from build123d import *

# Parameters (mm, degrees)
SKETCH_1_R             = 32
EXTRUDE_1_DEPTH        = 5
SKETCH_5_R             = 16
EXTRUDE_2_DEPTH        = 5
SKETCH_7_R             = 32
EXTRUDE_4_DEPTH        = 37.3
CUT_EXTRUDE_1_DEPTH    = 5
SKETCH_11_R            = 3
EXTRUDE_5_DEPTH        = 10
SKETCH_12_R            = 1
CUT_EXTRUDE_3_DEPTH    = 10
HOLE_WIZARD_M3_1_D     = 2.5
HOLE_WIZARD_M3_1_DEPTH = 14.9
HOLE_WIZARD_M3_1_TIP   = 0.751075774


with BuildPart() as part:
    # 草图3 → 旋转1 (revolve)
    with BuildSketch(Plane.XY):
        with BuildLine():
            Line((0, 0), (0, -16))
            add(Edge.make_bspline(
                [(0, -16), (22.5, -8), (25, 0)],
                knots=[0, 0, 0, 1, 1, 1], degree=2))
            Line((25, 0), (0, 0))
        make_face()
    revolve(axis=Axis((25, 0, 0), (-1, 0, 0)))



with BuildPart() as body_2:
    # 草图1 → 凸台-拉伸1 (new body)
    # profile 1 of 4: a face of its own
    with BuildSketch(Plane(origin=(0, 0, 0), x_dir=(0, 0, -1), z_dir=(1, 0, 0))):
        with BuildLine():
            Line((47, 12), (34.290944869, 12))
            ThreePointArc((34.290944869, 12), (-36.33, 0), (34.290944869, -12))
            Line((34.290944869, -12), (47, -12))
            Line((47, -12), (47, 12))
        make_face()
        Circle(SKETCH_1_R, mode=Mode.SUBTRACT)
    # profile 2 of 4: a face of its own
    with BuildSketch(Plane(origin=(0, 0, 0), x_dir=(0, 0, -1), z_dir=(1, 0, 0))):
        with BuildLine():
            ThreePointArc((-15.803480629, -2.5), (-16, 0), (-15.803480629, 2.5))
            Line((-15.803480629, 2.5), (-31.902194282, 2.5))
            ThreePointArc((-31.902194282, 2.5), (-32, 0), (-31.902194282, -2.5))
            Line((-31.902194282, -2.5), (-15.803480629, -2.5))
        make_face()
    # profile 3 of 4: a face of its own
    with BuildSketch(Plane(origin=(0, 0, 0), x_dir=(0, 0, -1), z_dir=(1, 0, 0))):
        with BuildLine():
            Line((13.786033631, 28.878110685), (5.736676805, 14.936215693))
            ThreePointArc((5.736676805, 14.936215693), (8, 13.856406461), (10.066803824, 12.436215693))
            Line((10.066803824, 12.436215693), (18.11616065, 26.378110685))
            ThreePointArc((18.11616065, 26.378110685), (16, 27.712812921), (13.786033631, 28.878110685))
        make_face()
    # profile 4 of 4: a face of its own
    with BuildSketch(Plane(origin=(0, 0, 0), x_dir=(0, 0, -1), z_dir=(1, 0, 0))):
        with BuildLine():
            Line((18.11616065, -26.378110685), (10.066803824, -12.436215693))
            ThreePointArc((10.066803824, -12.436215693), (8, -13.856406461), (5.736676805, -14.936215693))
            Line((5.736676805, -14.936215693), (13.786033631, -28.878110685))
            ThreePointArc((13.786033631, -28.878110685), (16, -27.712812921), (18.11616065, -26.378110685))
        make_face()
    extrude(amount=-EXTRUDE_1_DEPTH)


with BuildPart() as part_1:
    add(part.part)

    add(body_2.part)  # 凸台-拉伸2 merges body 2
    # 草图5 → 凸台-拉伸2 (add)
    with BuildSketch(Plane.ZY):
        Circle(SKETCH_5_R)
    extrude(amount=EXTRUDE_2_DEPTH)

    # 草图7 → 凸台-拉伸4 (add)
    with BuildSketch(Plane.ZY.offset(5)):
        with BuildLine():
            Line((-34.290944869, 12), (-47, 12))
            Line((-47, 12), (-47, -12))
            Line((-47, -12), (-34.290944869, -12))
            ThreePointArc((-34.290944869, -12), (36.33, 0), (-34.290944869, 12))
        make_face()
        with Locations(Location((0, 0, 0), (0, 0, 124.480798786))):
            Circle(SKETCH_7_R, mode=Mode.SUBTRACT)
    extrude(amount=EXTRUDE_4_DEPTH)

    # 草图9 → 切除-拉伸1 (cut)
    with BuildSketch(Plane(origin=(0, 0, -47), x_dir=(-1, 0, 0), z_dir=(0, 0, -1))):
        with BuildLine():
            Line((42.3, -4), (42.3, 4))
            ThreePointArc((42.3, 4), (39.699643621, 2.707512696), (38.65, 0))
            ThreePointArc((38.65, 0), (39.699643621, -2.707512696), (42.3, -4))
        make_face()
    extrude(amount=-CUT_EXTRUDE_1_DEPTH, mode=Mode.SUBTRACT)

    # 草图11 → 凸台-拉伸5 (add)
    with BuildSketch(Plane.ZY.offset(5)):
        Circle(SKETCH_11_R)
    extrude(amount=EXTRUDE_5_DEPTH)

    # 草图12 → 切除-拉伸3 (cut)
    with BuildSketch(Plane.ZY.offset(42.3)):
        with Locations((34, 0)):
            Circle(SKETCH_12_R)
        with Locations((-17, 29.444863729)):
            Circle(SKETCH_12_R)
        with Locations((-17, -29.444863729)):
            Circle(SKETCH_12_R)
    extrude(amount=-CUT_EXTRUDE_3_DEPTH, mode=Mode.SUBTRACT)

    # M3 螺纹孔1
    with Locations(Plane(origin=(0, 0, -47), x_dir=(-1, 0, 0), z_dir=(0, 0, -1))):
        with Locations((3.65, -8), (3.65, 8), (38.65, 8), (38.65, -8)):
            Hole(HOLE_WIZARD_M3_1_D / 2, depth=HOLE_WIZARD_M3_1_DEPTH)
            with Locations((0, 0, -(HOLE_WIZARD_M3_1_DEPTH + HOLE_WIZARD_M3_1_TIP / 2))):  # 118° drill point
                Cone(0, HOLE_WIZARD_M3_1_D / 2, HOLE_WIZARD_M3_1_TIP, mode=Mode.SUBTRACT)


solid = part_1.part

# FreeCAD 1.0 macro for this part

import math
import FreeCAD as App
import Part
import Sketcher
Q = App.Units.Quantity

doc = App.newDocument("Part")
body = doc.addObject("PartDesign::Body", "Body")

# Sketch on XY plane
sketch1 = body.newObject("Sketcher::SketchObject", "Sketch")
sketch1.AttachmentSupport = (doc.getObject("XY_Plane"), [""])
sketch1.MapMode = "FlatFace"
sketch1.addGeometry([
    Part.LineSegment(App.Vector(0, 0, 0), App.Vector(0, -16, 0)),
    Part.BSplineCurve([App.Vector(0, -16, 0), App.Vector(22.5, -8, 0), App.Vector(25, 0, 0)], [3, 3], [0, 1], False, 2, [1, 1, 1], False),
    Part.LineSegment(App.Vector(25, 0, 0), App.Vector(0, 0, 0)),
], False)
sketch1.addConstraint([
    Sketcher.Constraint("Block", 1),
    Sketcher.Constraint("Coincident", 0, 2, 1, 1),
    Sketcher.Constraint("Coincident", 1, 2, 2, 1),
    Sketcher.Constraint("Coincident", 2, 2, 0, 1),
    Sketcher.Constraint("Vertical", 0),
    Sketcher.Constraint("Horizontal", 2),
])
revolution = body.newObject("PartDesign::Revolution", "Revolution")
revolution.Profile = sketch1
revolution.ReferenceAxis = (sketch1, ["H_Axis"])
revolution.Angle = 360
body2 = doc.addObject("PartDesign::Body", "Body001")

# Sketch on YZ plane
sketch2 = body2.newObject("Sketcher::SketchObject", "Sketch001")
sketch2.AttachmentSupport = (doc.getObject("YZ_Plane001"), [""])
sketch2.MapMode = "FlatFace"
sketch2.addGeometry([
    Part.LineSegment(App.Vector(12, -47, 0), App.Vector(12, -34, 0)),  # 0
    Part.ArcOfCircle(Part.Circle(App.Vector(0, 0, 0), App.Vector(0, 0, 1), 36), math.radians(-71), math.radians(251)),  # 1
    Part.LineSegment(App.Vector(-12, -34, 0), App.Vector(-12, -47, 0)),  # 2
    Part.LineSegment(App.Vector(-12, -47, 0), App.Vector(12, -47, 0)),  # 3
    Part.ArcOfCircle(Part.Circle(App.Vector(0, 0, 0), App.Vector(0, 0, 1), 32), math.radians(-146), math.radians(-34)),  # 4
    Part.LineSegment(App.Vector(-26, -18, 0), App.Vector(-12, -10, 0)),  # 5
    Part.ArcOfCircle(Part.Circle(App.Vector(0, 0, 0), App.Vector(0, 0, 1), 16), math.radians(-158.99), math.radians(-141.01)),  # 6
    Part.LineSegment(App.Vector(-15, -6, 0), App.Vector(-29, -14, 0)),  # 7
    Part.ArcOfCircle(Part.Circle(App.Vector(0, 0, 0), App.Vector(0, 0, 1), 32), math.radians(94), math.radians(206)),  # 8
    Part.LineSegment(App.Vector(-2, 32, 0), App.Vector(-2, 16, 0)),  # 9
    Part.ArcOfCircle(Part.Circle(App.Vector(0, 0, 0), App.Vector(0, 0, 1), 16), math.radians(81.01), math.radians(98.99)),  # 10
    Part.LineSegment(App.Vector(2, 16, 0), App.Vector(2, 32, 0)),  # 11
    Part.ArcOfCircle(Part.Circle(App.Vector(0, 0, 0), App.Vector(0, 0, 1), 32), math.radians(-26), math.radians(86)),  # 12
    Part.LineSegment(App.Vector(29, -14, 0), App.Vector(15, -6, 0)),  # 13
    Part.ArcOfCircle(Part.Circle(App.Vector(0, 0, 0), App.Vector(0, 0, 1), 16), math.radians(-38.99), math.radians(-21.01)),  # 14
    Part.LineSegment(App.Vector(12, -10, 0), App.Vector(26, -18, 0)),  # 15
], False)
sketch2.addConstraint([
    Sketcher.Constraint("Coincident", 0, 2, 1, 1),
    Sketcher.Constraint("Coincident", 1, 2, 2, 1),
    Sketcher.Constraint("Coincident", 2, 2, 3, 1),
    Sketcher.Constraint("Coincident", 3, 2, 0, 1),
    Sketcher.Constraint("Coincident", 4, 1, 5, 1),
    Sketcher.Constraint("Coincident", 5, 2, 6, 2),
    Sketcher.Constraint("Coincident", 6, 1, 7, 1),
    Sketcher.Constraint("Coincident", 7, 2, 8, 2),
    Sketcher.Constraint("Coincident", 8, 1, 9, 1),
    Sketcher.Constraint("Coincident", 9, 2, 10, 2),
    Sketcher.Constraint("Coincident", 10, 1, 11, 1),
    Sketcher.Constraint("Coincident", 11, 2, 12, 2),
    Sketcher.Constraint("Coincident", 12, 1, 13, 1),
    Sketcher.Constraint("Coincident", 13, 2, 14, 2),
    Sketcher.Constraint("Coincident", 14, 1, 15, 1),
    Sketcher.Constraint("Coincident", 15, 2, 4, 2),
    Sketcher.Constraint("Vertical", 0),
    Sketcher.Constraint("Vertical", 2),
    Sketcher.Constraint("Horizontal", 3),
    Sketcher.Constraint("Vertical", 9),
    Sketcher.Constraint("Vertical", 11),
    Sketcher.Constraint("Coincident", 1, 3, -1, 1),
    Sketcher.Constraint("Coincident", 4, 3, -1, 1),
    Sketcher.Constraint("Coincident", 6, 3, -1, 1),
    Sketcher.Constraint("Coincident", 8, 3, -1, 1),
    Sketcher.Constraint("Coincident", 10, 3, -1, 1),
    Sketcher.Constraint("Coincident", 12, 3, -1, 1),
    Sketcher.Constraint("Coincident", 14, 3, -1, 1),
    Sketcher.Constraint("Equal", 4, 8),
    Sketcher.Constraint("Equal", 6, 10),
    Sketcher.Constraint("Equal", 8, 12),
    Sketcher.Constraint("Equal", 10, 14),
    Sketcher.Constraint("Parallel", 5, 7),
    Sketcher.Constraint("Parallel", 13, 15),
    Sketcher.Constraint("Horizontal", 0, 2, 1, 2),
    Sketcher.Constraint("Horizontal", 9, 2, 10, 1),
    Sketcher.Constraint("Horizontal", 7, 2, 12, 1),
    Sketcher.Constraint("Horizontal", 6, 1, 13, 2),
    Sketcher.Constraint("Horizontal", 5, 2, 14, 1),
    Sketcher.Constraint("Equal", 5, 7),
    Sketcher.Constraint("Radius", 4, 32.0),
    Sketcher.Constraint("Radius", 6, 16.0),
    Sketcher.Constraint("DistanceX", 3, 1, 3, 2, 24.0),
    Sketcher.Constraint("Angle", 5, Q("30 deg")),
    Sketcher.Constraint("Radius", 1, 36.33),
    Sketcher.Constraint("DistanceY", 2, 2, -1, 1, 47.0),
    Sketcher.Constraint("DistanceX", 9, 2, 10, 1, 5.0),
    Sketcher.Constraint("DistanceX", 6, 1, 5, 2, 2.5),
])
pad1 = body2.newObject("PartDesign::Pad", "Pad")
pad1.Profile = sketch2
pad1.Length = 5
pad1.Reversed = True
body.AllowCompound = True
doc.recompute()

boolean = body.newObject("PartDesign::Boolean", "Boolean")
boolean.Type = "Fuse"
boolean.addObjects([body2])

# Sketch on YZ plane
sketch3 = body.newObject("Sketcher::SketchObject", "Sketch002")
sketch3.AttachmentSupport = (doc.getObject("YZ_Plane"), [""])
sketch3.MapMode = "FlatFace"
sketch3.addGeometry(Part.Circle(App.Vector(0, 0, 0), App.Vector(0, 0, 1), 16), False)
sketch3.addConstraint([
    Sketcher.Constraint("Coincident", 0, 3, -1, 1),
    Sketcher.Constraint("Diameter", 0, 32.0),
])
pad2 = body.newObject("PartDesign::Pad", "Pad001")
pad2.Profile = sketch3
pad2.Length = 5
pad2.Reversed = True

# Sketch on YZ plane
sketch4 = body.newObject("Sketcher::SketchObject", "Sketch003")
sketch4.AttachmentSupport = (doc.getObject("YZ_Plane"), [""])
sketch4.MapMode = "FlatFace"
sketch4.AttachmentOffset = App.Placement(App.Vector(0, 0, -5), App.Rotation())
sketch4.addGeometry([
    Part.LineSegment(App.Vector(12, -34, 0), App.Vector(12, -47, 0)),  # 0
    Part.LineSegment(App.Vector(12, -47, 0), App.Vector(-12, -47, 0)),  # 1
    Part.LineSegment(App.Vector(-12, -47, 0), App.Vector(-12, -34, 0)),  # 2
    Part.ArcOfCircle(Part.Circle(App.Vector(0, 0, 0), App.Vector(0, 0, 1), 36), math.radians(-71), math.radians(251)),  # 3
    Part.Circle(App.Vector(0, 0, 0), App.Vector(0, 0, 1), 32),  # 4
], False)
sketch4.addConstraint([
    Sketcher.Constraint("Coincident", 0, 2, 1, 1),
    Sketcher.Constraint("Coincident", 1, 2, 2, 1),
    Sketcher.Constraint("Coincident", 2, 2, 3, 2),
    Sketcher.Constraint("Coincident", 3, 1, 0, 1),
    Sketcher.Constraint("Vertical", 0),
    Sketcher.Constraint("Horizontal", 1),
    Sketcher.Constraint("Vertical", 2),
    Sketcher.Constraint("Coincident", 3, 3, -1, 1),
    Sketcher.Constraint("Coincident", 4, 3, -1, 1),
    Sketcher.Constraint("Horizontal", 2, 2, 3, 1),
    Sketcher.Constraint("Diameter", 4, 64.0),
    Sketcher.Constraint("DistanceX", 1, 2, 1, 1, 24.0),
    Sketcher.Constraint("Radius", 3, 36.33),
    Sketcher.Constraint("DistanceY", 0, 2, -1, 1, 47.0),
])
pad3 = body.newObject("PartDesign::Pad", "Pad002")
pad3.Profile = sketch4
pad3.Length = 37.3
pad3.Reversed = True

# Sketch on XY plane
sketch5 = body.newObject("Sketcher::SketchObject", "Sketch004")
sketch5.AttachmentSupport = (doc.getObject("XY_Plane"), [""])
sketch5.MapMode = "FlatFace"
sketch5.AttachmentOffset = App.Placement(App.Vector(0, 0, -47), App.Rotation())
sketch5.addGeometry([
    Part.LineSegment(App.Vector(-42.3, -4, 0), App.Vector(-42.3, 4, 0)),
    Part.ArcOfCircle(Part.Circle(App.Vector(-42.7, 0, 0), App.Vector(0, 0, 1), 4), math.radians(0), math.radians(85)),
    Part.ArcOfCircle(Part.Circle(App.Vector(-42.7, 0, 0), App.Vector(0, 0, 1), 4), math.radians(-85), math.radians(0)),
], False)
sketch5.addConstraint([
    Sketcher.Constraint("Coincident", 0, 2, 1, 2),
    Sketcher.Constraint("Tangent", 1, 1, 2, 2),
    Sketcher.Constraint("Coincident", 2, 1, 0, 1),
    Sketcher.Constraint("Vertical", 0),
    Sketcher.Constraint("Equal", 1, 2),
    Sketcher.Constraint("PointOnObject", 1, 3, -1),
    Sketcher.Constraint("PointOnObject", 1, 1, -1),
    Sketcher.Constraint("DistanceY", 0, 1, 0, 2, 8.0),
    Sketcher.Constraint("DistanceX", 0, 2, -1, 1, 42.3),
    Sketcher.Constraint("DistanceX", 1, 1, -1, 1, 38.65),
])
pocket1 = body.newObject("PartDesign::Pocket", "Pocket")
pocket1.Profile = sketch5
pocket1.Length = 5
pocket1.Reversed = True

# Sketch on YZ plane
sketch6 = body.newObject("Sketcher::SketchObject", "Sketch005")
sketch6.AttachmentSupport = (doc.getObject("YZ_Plane"), [""])
sketch6.MapMode = "FlatFace"
sketch6.AttachmentOffset = App.Placement(App.Vector(0, 0, -5), App.Rotation())
sketch6.addGeometry(Part.Circle(App.Vector(0, 0, 0), App.Vector(0, 0, 1), 3), False)
sketch6.addConstraint([
    Sketcher.Constraint("Coincident", 0, 3, -1, 1),
    Sketcher.Constraint("Diameter", 0, 6.0),
])
pad4 = body.newObject("PartDesign::Pad", "Pad003")
pad4.Profile = sketch6
pad4.Length = 10
pad4.Reversed = True

# Sketch on YZ plane
sketch7 = body.newObject("Sketcher::SketchObject", "Sketch006")
sketch7.AttachmentSupport = (doc.getObject("YZ_Plane"), [""])
sketch7.MapMode = "FlatFace"
sketch7.AttachmentOffset = App.Placement(App.Vector(0, 0, -42.3), App.Rotation())
sketch7.addGeometry([
    Part.Circle(App.Vector(0, 34, 0), App.Vector(0, 0, 1), 1),
    Part.Circle(App.Vector(29.4, -17, 0), App.Vector(0, 0, 1), 1),
    Part.Circle(App.Vector(-29.4, -17, 0), App.Vector(0, 0, 1), 1),
], False)
sketch7.addConstraint([
    Sketcher.Constraint("Equal", 0, 1),
    Sketcher.Constraint("Equal", 1, 2),
    Sketcher.Constraint("Symmetric", 1, 3, 2, 3, -2),
    Sketcher.Constraint("PointOnObject", 0, 3, -2),
    Sketcher.Constraint("Diameter", 0, 2.0),
    Sketcher.Constraint("DistanceY", -1, 1, 0, 3, 34.0),
    Sketcher.Constraint("DistanceY", 1, 3, -1, 1, 17.0),
    Sketcher.Constraint("DistanceX", -1, 1, 1, 3, 29.444864),
])
pocket2 = body.newObject("PartDesign::Pocket", "Pocket001")
pocket2.Profile = sketch7
pocket2.Length = 10
pocket2.Reversed = True

# Sketch on XY plane
sketch8 = body.newObject("Sketcher::SketchObject", "Sketch007")
sketch8.AttachmentSupport = (doc.getObject("XY_Plane"), [""])
sketch8.MapMode = "FlatFace"
sketch8.AttachmentOffset = App.Placement(App.Vector(0, 0, -47), App.Rotation())
sketch8.addGeometry([
    Part.Circle(App.Vector(-3.6, -8, 0), App.Vector(0, 0, 1), 1.2),
    Part.Circle(App.Vector(-3.6, 8, 0), App.Vector(0, 0, 1), 1.2),
    Part.Circle(App.Vector(-38.6, 8, 0), App.Vector(0, 0, 1), 1.2),
    Part.Circle(App.Vector(-38.6, -8, 0), App.Vector(0, 0, 1), 1.2),
], False)
sketch8.addConstraint([
    Sketcher.Constraint("Equal", 0, 1),
    Sketcher.Constraint("Equal", 1, 2),
    Sketcher.Constraint("Equal", 2, 3),
    Sketcher.Constraint("Symmetric", 0, 3, 1, 3, -1),
    Sketcher.Constraint("Symmetric", 2, 3, 3, 3, -1),
    Sketcher.Constraint("Horizontal", 1, 3, 2, 3),
    Sketcher.Constraint("Diameter", 0, 2.5),
    Sketcher.Constraint("DistanceY", 0, 3, -1, 1, 8.0),
    Sketcher.Constraint("DistanceX", 2, 3, 1, 3, 35.0),
    Sketcher.Constraint("DistanceX", 0, 3, -1, 1, 3.65),
])
doc.recompute()
hole = body.newObject("PartDesign::Hole", "Hole")
hole.Profile = sketch8
hole.ThreadType = "None"
hole.Diameter = 2.5
hole.DepthType = "Dimension"
hole.Depth = 14.9
hole.DrillPoint = "Angled"
hole.DrillPointAngle = 118
hole.Reversed = True

doc.recompute()
